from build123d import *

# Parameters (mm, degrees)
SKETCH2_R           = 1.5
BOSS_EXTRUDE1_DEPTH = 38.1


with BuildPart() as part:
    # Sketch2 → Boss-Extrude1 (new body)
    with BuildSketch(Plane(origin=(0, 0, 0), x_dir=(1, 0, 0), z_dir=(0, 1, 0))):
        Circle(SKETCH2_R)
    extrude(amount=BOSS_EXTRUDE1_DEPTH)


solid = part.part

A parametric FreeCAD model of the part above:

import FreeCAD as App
import Part
import Sketcher

V = App.Vector

doc = App.newDocument("Part")
params = doc.addObject("Spreadsheet::Sheet", "Params")
for row, (alias, value) in enumerate([
    ("sketch1_diameter", "3 mm"),
    ("pad1_length", "38.1 mm"),
], start=1):
    params.set(f"A{row}", alias)
    params.set(f"B{row}", "=" + value)
    params.setAlias(f"B{row}", alias)

body = doc.addObject("PartDesign::Body", "Body")

# Sketch on XZ plane
sketch1 = doc.addObject("Sketcher::SketchObject", "Sketch")
body.addObject(sketch1)
sketch1.AttachmentSupport = (doc.XZ_Plane, [""])
sketch1.MapMode = "FlatFace"
sketch1.addGeometry(Part.Circle(V(0, 0, 0), V(0, 0, 1), 1.5), False)
sketch1.addConstraint(Sketcher.Constraint("Coincident", 0, 3, -1, 1))
sketch1.addConstraint(Sketcher.Constraint("Diameter", 0, 3.0))
sketch1.setExpression("Constraints[1]", "Params.sketch1_diameter")
pad1 = doc.addObject("PartDesign::Pad", "Pad")
body.addObject(pad1)
pad1.Profile = sketch1
pad1.setExpression("Length", "Params.pad1_length")
pad1.Reversed = True

doc.recompute()
